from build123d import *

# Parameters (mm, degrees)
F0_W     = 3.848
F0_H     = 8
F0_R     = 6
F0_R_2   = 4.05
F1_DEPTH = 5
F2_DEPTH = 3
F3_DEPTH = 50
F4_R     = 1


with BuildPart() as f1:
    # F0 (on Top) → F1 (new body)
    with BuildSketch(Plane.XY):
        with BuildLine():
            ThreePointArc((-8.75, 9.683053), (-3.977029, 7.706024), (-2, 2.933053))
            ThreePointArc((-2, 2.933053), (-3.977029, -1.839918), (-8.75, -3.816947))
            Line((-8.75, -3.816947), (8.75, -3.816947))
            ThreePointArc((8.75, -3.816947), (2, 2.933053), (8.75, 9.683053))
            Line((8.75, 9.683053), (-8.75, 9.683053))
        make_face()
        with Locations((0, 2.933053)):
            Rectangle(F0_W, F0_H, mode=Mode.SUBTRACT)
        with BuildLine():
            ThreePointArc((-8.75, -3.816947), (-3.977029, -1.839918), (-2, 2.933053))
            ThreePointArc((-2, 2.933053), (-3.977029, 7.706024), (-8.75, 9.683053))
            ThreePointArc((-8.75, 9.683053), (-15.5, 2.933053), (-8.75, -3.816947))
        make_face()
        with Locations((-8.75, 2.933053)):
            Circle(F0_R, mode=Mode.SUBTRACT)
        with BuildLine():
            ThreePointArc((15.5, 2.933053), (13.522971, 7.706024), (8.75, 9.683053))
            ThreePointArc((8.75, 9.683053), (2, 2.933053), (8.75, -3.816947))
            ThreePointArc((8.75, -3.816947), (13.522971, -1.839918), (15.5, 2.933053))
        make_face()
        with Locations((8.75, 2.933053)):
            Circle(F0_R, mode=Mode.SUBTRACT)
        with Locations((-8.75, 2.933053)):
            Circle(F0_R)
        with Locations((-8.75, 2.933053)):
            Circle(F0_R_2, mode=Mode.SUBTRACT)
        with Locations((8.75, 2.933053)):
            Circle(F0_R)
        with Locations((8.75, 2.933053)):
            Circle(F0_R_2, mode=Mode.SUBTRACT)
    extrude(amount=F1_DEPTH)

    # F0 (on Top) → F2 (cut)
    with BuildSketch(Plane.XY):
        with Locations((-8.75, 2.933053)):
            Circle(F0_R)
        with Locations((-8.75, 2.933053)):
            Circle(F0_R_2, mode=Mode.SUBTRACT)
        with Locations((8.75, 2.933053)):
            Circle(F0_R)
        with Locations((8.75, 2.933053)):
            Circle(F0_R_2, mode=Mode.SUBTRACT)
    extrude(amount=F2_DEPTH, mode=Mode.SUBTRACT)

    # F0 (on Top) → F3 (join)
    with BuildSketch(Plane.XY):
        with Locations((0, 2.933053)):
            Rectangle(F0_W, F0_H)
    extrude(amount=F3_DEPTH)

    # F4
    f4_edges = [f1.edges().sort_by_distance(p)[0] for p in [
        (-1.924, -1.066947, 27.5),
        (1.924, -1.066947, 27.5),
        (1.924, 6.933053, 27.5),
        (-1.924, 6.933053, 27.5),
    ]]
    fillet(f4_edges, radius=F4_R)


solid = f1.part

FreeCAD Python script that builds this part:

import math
import FreeCAD as App
import Part
import Sketcher

V = App.Vector


def edges_at(feature, points):
    """Names of the edges that pass closest to the given points."""
    edges = feature.Shape.Edges
    near = lambda p: min(range(len(edges)), key=lambda i: edges[i].distToShape(Part.Vertex(*p))[0])
    return sorted({f"Edge{near(p) + 1}" for p in points})


def add_polygon(sketch, points):
    """Adds a closed chain of lines whose ends are joined by coincident constraints."""
    first, n = sketch.GeometryCount, len(points)
    for a, b in zip(points, points[1:] + points[:1]):
        sketch.addGeometry(Part.LineSegment(App.Vector(*a, 0), App.Vector(*b, 0)), False)
    for i in range(n):
        sketch.addConstraint(Sketcher.Constraint("Coincident", first + i, 2, first + (i + 1) % n, 1))

doc = App.newDocument("Part")
body = doc.addObject("PartDesign::Body", "Body")

# Sketch on XY plane
sketch1 = body.newObject("Sketcher::SketchObject", "Sketch")
sketch1.AttachmentSupport = (doc.getObject("XY_Plane"), [""])
sketch1.MapMode = "FlatFace"
sketch1.addGeometry(Part.LineSegment(V(8.8, 9.7, 0), V(-8.8, 9.7, 0)), False)  # 0
sketch1.addGeometry(Part.ArcOfCircle(Part.Circle(V(-8.8, 2.9, 0), V(0, 0, 1), 6.8), math.radians(90), math.radians(270)), False)  # 1
sketch1.addGeometry(Part.LineSegment(V(-8.8, -3.8, 0), V(8.8, -3.8, 0)), False)  # 2
sketch1.addGeometry(Part.ArcOfCircle(Part.Circle(V(8.8, 2.9, 0), V(0, 0, 1), 6.7), math.radians(-90), math.radians(0)), False)  # 3
sketch1.addGeometry(Part.ArcOfCircle(Part.Circle(V(8.8, 2.9, 0), V(0, 0, 1), 6.7), math.radians(0), math.radians(90)), False)  # 4
sketch1.addGeometry(Part.Circle(V(-8.8, 2.9, 0), V(0, 0, 1), 4), False)  # 5
add_polygon(sketch1, [(1.9, -1.1), (-1.9, -1.1), (-1.9, 6.9), (1.9, 6.9)])  # lines 6-9
sketch1.addGeometry(Part.Circle(V(8.8, 2.9, 0), V(0, 0, 1), 4), False)  # 10
sketch1.addConstraint([
    Sketcher.Constraint("Tangent", 0, 2, 1, 1),
    Sketcher.Constraint("Tangent", 1, 2, 2, 1),
    Sketcher.Constraint("Tangent", 2, 2, 3, 1),
    Sketcher.Constraint("Tangent", 3, 2, 4, 1),
    Sketcher.Constraint("Tangent", 4, 2, 0, 1),
    Sketcher.Constraint("Horizontal", 0),
    Sketcher.Constraint("Horizontal", 2),
    Sketcher.Constraint("Horizontal", 6),
    Sketcher.Constraint("Vertical", 7),
    Sketcher.Constraint("Horizontal", 8),
    Sketcher.Constraint("Vertical", 9),
    Sketcher.Constraint("Coincident", 5, 3, 1, 3),
    Sketcher.Constraint("Coincident", 10, 3, 3, 3),
    Sketcher.Constraint("Equal", 1, 3),
    Sketcher.Constraint("Equal", 5, 10),
    Sketcher.Constraint("Horizontal", 10, 3, 3, 2),
    Sketcher.Constraint("Diameter", 5, 8.1),
    Sketcher.Constraint("DistanceY", 7, 1, 7, 2, 8.0),
    Sketcher.Constraint("Radius", 1, 6.75),
    Sketcher.Constraint("DistanceX", 0, 2, 0, 1, 17.5),
    Sketcher.Constraint("DistanceY", 6, 2, 1, 3, 4.0),
    Sketcher.Constraint("DistanceX", -1, 1, 3, 2, 15.5),
    Sketcher.Constraint("DistanceX", 6, 2, 6, 1, 3.848),
    Sketcher.Constraint("DistanceX", 6, 2, -1, 1, 1.924),
    Sketcher.Constraint("DistanceY", -1, 1, 1, 3, 2.933053),
])
pad1 = body.newObject("PartDesign::Pad", "Pad")
pad1.Profile = sketch1
pad1.Length = 5

# Sketch on XY plane
sketch2 = body.newObject("Sketcher::SketchObject", "Sketch001")
sketch2.AttachmentSupport = (doc.getObject("XY_Plane"), [""])
sketch2.MapMode = "FlatFace"
sketch2.addGeometry([
    Part.Circle(V(-8.8, 2.9, 0), V(0, 0, 1), 6),
    Part.Circle(V(-8.8, 2.9, 0), V(0, 0, 1), 4),
    Part.Circle(V(8.8, 2.9, 0), V(0, 0, 1), 6),
    Part.Circle(V(8.8, 2.9, 0), V(0, 0, 1), 4),
], False)
sketch2.addConstraint([
    Sketcher.Constraint("Coincident", 1, 3, 0, 3),
    Sketcher.Constraint("Coincident", 3, 3, 2, 3),
    Sketcher.Constraint("Equal", 0, 2),
    Sketcher.Constraint("Equal", 1, 3),
    Sketcher.Constraint("Symmetric", 0, 3, 2, 3, -2),
    Sketcher.Constraint("Diameter", 0, 12.0),
    Sketcher.Constraint("Diameter", 1, 8.1),
    Sketcher.Constraint("DistanceX", 0, 3, 2, 3, 17.5),
    Sketcher.Constraint("DistanceY", -1, 1, 0, 3, 2.933053),
])
pocket1 = body.newObject("PartDesign::Pocket", "Pocket")
pocket1.Profile = sketch2
pocket1.Length = 3
pocket1.Reversed = True

# Sketch on XY plane
sketch3 = body.newObject("Sketcher::SketchObject", "Sketch002")
sketch3.AttachmentSupport = (doc.getObject("XY_Plane"), [""])
sketch3.MapMode = "FlatFace"
add_polygon(sketch3, [(-1.9, 6.9), (-1.9, -1.1), (1.9, -1.1), (1.9, 6.9)])  # lines 0-3
sketch3.addConstraint([
    Sketcher.Constraint("Vertical", 0),
    Sketcher.Constraint("Horizontal", 1),
    Sketcher.Constraint("Vertical", 2),
    Sketcher.Constraint("Horizontal", 3),
    Sketcher.Constraint("DistanceY", 0, 2, 0, 1, 8.0),
    Sketcher.Constraint("DistanceX", 1, 1, 1, 2, 3.848),
    Sketcher.Constraint("DistanceX", 0, 2, -1, 1, 1.924),
    Sketcher.Constraint("DistanceY", 0, 2, -1, 1, 1.066947),
])
pad2 = body.newObject("PartDesign::Pad", "Pad001")
pad2.Profile = sketch3
pad2.Length = 50
doc.recompute()

fillet = body.newObject("PartDesign::Fillet", "Fillet")
fillet.Base = (pad2, edges_at(pad2, [
    (-1.924, -1.067, 27.5),
    (1.924, -1.067, 27.5),
    (1.924, 6.933, 27.5),
    (-1.924, 6.933, 27.5),
]))
fillet.Radius = 1

doc.recompute()
